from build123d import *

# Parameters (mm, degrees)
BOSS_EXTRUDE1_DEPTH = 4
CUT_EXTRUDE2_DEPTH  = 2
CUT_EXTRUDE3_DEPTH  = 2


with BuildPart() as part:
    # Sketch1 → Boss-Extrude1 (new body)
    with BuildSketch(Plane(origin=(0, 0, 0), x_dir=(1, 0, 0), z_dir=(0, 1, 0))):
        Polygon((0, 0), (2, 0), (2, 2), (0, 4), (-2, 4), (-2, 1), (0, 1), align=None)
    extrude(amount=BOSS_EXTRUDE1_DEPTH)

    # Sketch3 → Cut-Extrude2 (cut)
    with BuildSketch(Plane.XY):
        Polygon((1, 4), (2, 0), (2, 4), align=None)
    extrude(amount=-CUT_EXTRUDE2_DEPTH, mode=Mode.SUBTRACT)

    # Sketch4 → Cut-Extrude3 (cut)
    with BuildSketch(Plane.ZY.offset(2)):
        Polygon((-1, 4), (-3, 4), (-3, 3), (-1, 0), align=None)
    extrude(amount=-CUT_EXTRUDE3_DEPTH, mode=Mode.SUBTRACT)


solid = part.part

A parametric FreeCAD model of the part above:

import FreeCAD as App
import Part
import Sketcher

V = App.Vector
Q = App.Units.Quantity


def add_polygon(sketch, points):
    """Adds a closed chain of lines whose ends are joined by coincident constraints."""
    first, n = sketch.GeometryCount, len(points)
    for a, b in zip(points, points[1:] + points[:1]):
        sketch.addGeometry(Part.LineSegment(App.Vector(*a, 0), App.Vector(*b, 0)), False)
    for i in range(n):
        sketch.addConstraint(Sketcher.Constraint("Coincident", first + i, 2, first + (i + 1) % n, 1))

doc = App.newDocument("Part")
body = doc.addObject("PartDesign::Body", "Body")

# Sketch on XZ plane
sketch1 = body.newObject("Sketcher::SketchObject", "Sketch")
sketch1.AttachmentSupport = (doc.getObject("XZ_Plane"), [""])
sketch1.MapMode = "FlatFace"
add_polygon(sketch1, [(0, 0), (2, 0), (2, -2), (0, -4), (-2, -4), (-2, -1), (0, -1)])  # lines 0-6
sketch1.addConstraint([
    Sketcher.Constraint("Horizontal", 0),
    Sketcher.Constraint("Vertical", 1),
    Sketcher.Constraint("Horizontal", 3),
    Sketcher.Constraint("Vertical", 4),
    Sketcher.Constraint("Horizontal", 5),
    Sketcher.Constraint("Vertical", 6),
    Sketcher.Constraint("Coincident", 6, 2, -1, 1),
    Sketcher.Constraint("PointOnObject", 2, 2, -2),
    Sketcher.Constraint("Equal", 0, 3),
    Sketcher.Constraint("Equal", 5, 1),
    Sketcher.Constraint("DistanceX", 0, 1, 0, 2, Q("2 mm")),
    Sketcher.Constraint("DistanceY", 4, 1, 4, 2, Q("3 mm")),
    Sketcher.Constraint("DistanceY", 6, 1, 6, 2, Q("1 mm")),
])
pad1 = body.newObject("PartDesign::Pad", "Pad")
pad1.Profile = sketch1
pad1.Length = 4
pad1.Reversed = True

# Sketch on XY plane
sketch2 = body.newObject("Sketcher::SketchObject", "Sketch001")
sketch2.AttachmentSupport = (doc.getObject("XY_Plane"), [""])
sketch2.MapMode = "FlatFace"
add_polygon(sketch2, [(1, 4), (2, 0), (2, 4)])  # lines 0-2
sketch2.addConstraint([
    Sketcher.Constraint("Vertical", 1),
    Sketcher.Constraint("Horizontal", 2),
    Sketcher.Constraint("PointOnObject", 0, 2, -1),
    Sketcher.Constraint("DistanceX", 2, 2, 2, 1, Q("1 mm")),
    Sketcher.Constraint("DistanceY", 1, 1, 1, 2, Q("4 mm")),
    Sketcher.Constraint("DistanceX", -1, 1, 0, 2, Q("2 mm")),
])
pocket1 = body.newObject("PartDesign::Pocket", "Pocket")
pocket1.Profile = sketch2
pocket1.Length = 2

# Sketch on YZ plane
sketch3 = body.newObject("Sketcher::SketchObject", "Sketch002")
sketch3.AttachmentSupport = (doc.getObject("YZ_Plane"), [""])
sketch3.MapMode = "FlatFace"
sketch3.AttachmentOffset = App.Placement(V(0, 0, -2), App.Rotation())
add_polygon(sketch3, [(4, -1), (4, -3), (3, -3), (0, -1)])  # lines 0-3
sketch3.addConstraint([
    Sketcher.Constraint("Vertical", 0),
    Sketcher.Constraint("Horizontal", 1),
    Sketcher.Constraint("Horizontal", 3),
    Sketcher.Constraint("PointOnObject", 2, 2, -2),
    Sketcher.Constraint("DistanceX", 1, 2, 1, 1, Q("1 mm")),
    Sketcher.Constraint("DistanceX", 3, 1, 3, 2, Q("4 mm")),
    Sketcher.Constraint("DistanceY", 0, 2, 0, 1, Q("2 mm")),
    Sketcher.Constraint("DistanceY", 0, 2, -1, 1, Q("3 mm")),
])
pocket2 = body.newObject("PartDesign::Pocket", "Pocket001")
pocket2.Profile = sketch3
pocket2.Length = 2
pocket2.Reversed = True

doc.recompute()
